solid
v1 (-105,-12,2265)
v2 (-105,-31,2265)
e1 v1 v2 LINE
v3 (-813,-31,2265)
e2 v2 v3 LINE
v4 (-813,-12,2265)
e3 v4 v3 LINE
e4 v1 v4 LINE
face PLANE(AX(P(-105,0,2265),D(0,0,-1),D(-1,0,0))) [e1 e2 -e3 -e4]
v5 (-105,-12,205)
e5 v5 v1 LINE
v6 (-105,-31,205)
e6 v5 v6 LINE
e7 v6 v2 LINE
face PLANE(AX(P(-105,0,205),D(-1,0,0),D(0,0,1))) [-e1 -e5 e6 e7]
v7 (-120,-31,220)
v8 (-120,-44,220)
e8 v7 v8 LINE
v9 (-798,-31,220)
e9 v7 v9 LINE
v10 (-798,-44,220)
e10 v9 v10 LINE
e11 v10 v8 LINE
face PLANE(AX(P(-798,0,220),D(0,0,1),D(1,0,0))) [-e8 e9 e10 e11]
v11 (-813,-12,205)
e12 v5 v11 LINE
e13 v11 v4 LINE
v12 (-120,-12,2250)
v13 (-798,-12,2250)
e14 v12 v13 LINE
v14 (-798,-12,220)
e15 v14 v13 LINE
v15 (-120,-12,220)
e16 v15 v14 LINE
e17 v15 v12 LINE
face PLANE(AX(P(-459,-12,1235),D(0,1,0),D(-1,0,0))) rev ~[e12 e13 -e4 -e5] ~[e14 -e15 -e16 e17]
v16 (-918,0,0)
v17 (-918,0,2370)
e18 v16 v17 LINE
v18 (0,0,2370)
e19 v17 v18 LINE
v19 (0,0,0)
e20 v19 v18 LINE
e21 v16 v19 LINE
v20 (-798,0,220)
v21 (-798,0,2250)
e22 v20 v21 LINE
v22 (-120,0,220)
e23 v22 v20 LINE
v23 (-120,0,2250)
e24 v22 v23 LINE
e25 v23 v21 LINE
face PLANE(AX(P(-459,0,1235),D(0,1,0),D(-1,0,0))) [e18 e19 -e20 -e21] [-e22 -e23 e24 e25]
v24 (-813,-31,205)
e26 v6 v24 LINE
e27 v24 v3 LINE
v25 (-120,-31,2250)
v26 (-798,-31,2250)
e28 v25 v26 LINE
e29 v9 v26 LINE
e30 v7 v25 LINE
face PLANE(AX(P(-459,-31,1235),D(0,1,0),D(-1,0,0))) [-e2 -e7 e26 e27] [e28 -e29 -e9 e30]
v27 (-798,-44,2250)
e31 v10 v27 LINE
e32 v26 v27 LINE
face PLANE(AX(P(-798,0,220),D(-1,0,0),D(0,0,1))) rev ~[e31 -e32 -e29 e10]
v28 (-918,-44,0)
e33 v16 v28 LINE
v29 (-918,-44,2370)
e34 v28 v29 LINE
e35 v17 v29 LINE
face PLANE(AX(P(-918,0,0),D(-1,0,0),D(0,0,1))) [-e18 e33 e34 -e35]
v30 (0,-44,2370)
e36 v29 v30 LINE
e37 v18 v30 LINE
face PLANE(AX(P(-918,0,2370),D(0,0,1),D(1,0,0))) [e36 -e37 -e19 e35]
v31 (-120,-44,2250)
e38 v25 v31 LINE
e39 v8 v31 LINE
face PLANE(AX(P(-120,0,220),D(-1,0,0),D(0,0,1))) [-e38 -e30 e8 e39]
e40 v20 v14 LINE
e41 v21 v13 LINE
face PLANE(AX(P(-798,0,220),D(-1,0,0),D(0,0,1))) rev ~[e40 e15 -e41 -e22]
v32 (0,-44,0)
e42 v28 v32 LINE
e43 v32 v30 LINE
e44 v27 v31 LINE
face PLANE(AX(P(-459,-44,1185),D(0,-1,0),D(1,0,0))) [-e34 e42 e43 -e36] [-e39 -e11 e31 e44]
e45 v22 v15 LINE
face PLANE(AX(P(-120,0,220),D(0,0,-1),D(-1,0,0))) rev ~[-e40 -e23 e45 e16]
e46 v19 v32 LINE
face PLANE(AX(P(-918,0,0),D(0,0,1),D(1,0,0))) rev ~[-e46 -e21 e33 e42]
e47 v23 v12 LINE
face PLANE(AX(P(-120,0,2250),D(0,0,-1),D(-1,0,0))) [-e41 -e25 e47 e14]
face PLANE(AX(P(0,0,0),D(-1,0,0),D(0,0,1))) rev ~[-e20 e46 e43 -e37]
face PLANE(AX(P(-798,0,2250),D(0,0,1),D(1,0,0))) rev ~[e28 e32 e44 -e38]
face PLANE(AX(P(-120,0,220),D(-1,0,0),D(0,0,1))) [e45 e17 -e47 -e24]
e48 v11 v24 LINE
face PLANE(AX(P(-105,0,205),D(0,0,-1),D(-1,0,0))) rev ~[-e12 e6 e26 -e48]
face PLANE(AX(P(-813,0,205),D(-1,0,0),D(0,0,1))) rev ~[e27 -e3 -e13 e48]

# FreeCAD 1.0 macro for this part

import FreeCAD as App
import Part
import Sketcher

V = App.Vector
Q = App.Units.Quantity


def add_polygon(sketch, points):
    """Adds a closed chain of lines whose ends are joined by coincident constraints."""
    first, n = sketch.GeometryCount, len(points)
    for a, b in zip(points, points[1:] + points[:1]):
        sketch.addGeometry(Part.LineSegment(App.Vector(*a, 0), App.Vector(*b, 0)), False)
    for i in range(n):
        sketch.addConstraint(Sketcher.Constraint("Coincident", first + i, 2, first + (i + 1) % n, 1))

doc = App.newDocument("Part")
params = doc.addObject("Spreadsheet::Sheet", "Params")
for row, (alias, value) in enumerate([
    ("sketch1_width", "918 mm"),
    ("sketch1_width2", "678 mm"),
    ("sketch1_height", "2370 mm"),
    ("sketch1_height2", "2030 mm"),
    ("pad1_length", "44 mm"),
    ("sketch2_width", "708 mm"),
    ("sketch2_width2", "678 mm"),
    ("sketch2_height", "2060 mm"),
    ("sketch2_height2", "2030 mm"),
    ("pocket1_length", "31 mm"),
    ("sketch3_width", "708 mm"),
    ("sketch3_width2", "678 mm"),
    ("sketch3_height", "2060 mm"),
    ("sketch3_height2", "2030 mm"),
    ("pad2_length", "12 mm"),
], start=1):
    params.set(f"A{row}", alias)
    params.set(f"B{row}", "=" + value)
    params.setAlias(f"B{row}", alias)

body = doc.addObject("PartDesign::Body", "Body")

# Sketch on XZ plane
sketch1 = doc.addObject("Sketcher::SketchObject", "Sketch")
body.addObject(sketch1)
sketch1.AttachmentSupport = (doc.XZ_Plane, [""])
sketch1.MapMode = "FlatFace"
add_polygon(sketch1, [(-918, 2370), (-918, 0), (0, 0), (0, 2370)])  # lines 0-3
add_polygon(sketch1, [(-120, 220), (-798, 220), (-798, 2250), (-120, 2250)])  # lines 4-7
sketch1.addConstraint([
    Sketcher.Constraint("Vertical", 0),
    Sketcher.Constraint("Horizontal", 1),
    Sketcher.Constraint("Vertical", 2),
    Sketcher.Constraint("Horizontal", 3),
    Sketcher.Constraint("Horizontal", 4),
    Sketcher.Constraint("Vertical", 5),
    Sketcher.Constraint("Horizontal", 6),
    Sketcher.Constraint("Vertical", 7),
    Sketcher.Constraint("Coincident", 1, 2, -1, 1),
    Sketcher.Constraint("DistanceX", 1, 1, 1, 2, Q("918 mm")),
    Sketcher.Constraint("DistanceX", 4, 2, 4, 1, Q("678 mm")),
    Sketcher.Constraint("DistanceY", 0, 2, 0, 1, Q("2370 mm")),
    Sketcher.Constraint("DistanceY", 5, 1, 5, 2, Q("2030 mm")),
    Sketcher.Constraint("DistanceX", 4, 2, -1, 1, Q("798 mm")),
    Sketcher.Constraint("DistanceY", -1, 1, 4, 2, Q("220 mm")),
])
sketch1.setExpression("Constraints[17]", "Params.sketch1_width")
sketch1.setExpression("Constraints[18]", "Params.sketch1_width2")
sketch1.setExpression("Constraints[19]", "Params.sketch1_height")
sketch1.setExpression("Constraints[20]", "Params.sketch1_height2")
pad1 = doc.addObject("PartDesign::Pad", "Pad")
body.addObject(pad1)
pad1.Profile = sketch1
pad1.setExpression("Length", "Params.pad1_length")

# Sketch on XZ plane
sketch2 = doc.addObject("Sketcher::SketchObject", "Sketch001")
body.addObject(sketch2)
sketch2.AttachmentSupport = (doc.XZ_Plane, [""])
sketch2.MapMode = "FlatFace"
add_polygon(sketch2, [(-105, 2265), (-105, 205), (-813, 205), (-813, 2265)])  # lines 0-3
add_polygon(sketch2, [(-798, 220), (-120, 220), (-120, 2250), (-798, 2250)])  # lines 4-7
sketch2.addConstraint([
    Sketcher.Constraint("Vertical", 0),
    Sketcher.Constraint("Horizontal", 1),
    Sketcher.Constraint("Vertical", 2),
    Sketcher.Constraint("Horizontal", 3),
    Sketcher.Constraint("Horizontal", 4),
    Sketcher.Constraint("Vertical", 5),
    Sketcher.Constraint("Horizontal", 6),
    Sketcher.Constraint("Vertical", 7),
    Sketcher.Constraint("DistanceX", 1, 2, 1, 1, Q("708 mm")),
    Sketcher.Constraint("DistanceX", 4, 1, 4, 2, Q("678 mm")),
    Sketcher.Constraint("DistanceY", 0, 2, 0, 1, Q("2060 mm")),
    Sketcher.Constraint("DistanceY", 5, 1, 5, 2, Q("2030 mm")),
    Sketcher.Constraint("DistanceX", 0, 2, -1, 1, Q("105 mm")),
    Sketcher.Constraint("DistanceY", -1, 1, 0, 2, Q("205 mm")),
    Sketcher.Constraint("DistanceX", 4, 2, -1, 1, Q("120 mm")),
    Sketcher.Constraint("DistanceY", -1, 1, 4, 2, Q("220 mm")),
])
sketch2.setExpression("Constraints[16]", "Params.sketch2_width")
sketch2.setExpression("Constraints[17]", "Params.sketch2_width2")
sketch2.setExpression("Constraints[18]", "Params.sketch2_height")
sketch2.setExpression("Constraints[19]", "Params.sketch2_height2")
pocket1 = doc.addObject("PartDesign::Pocket", "Pocket")
body.addObject(pocket1)
pocket1.Profile = sketch2
pocket1.setExpression("Length", "Params.pocket1_length")
pocket1.Reversed = True

# Sketch on XZ plane
sketch3 = doc.addObject("Sketcher::SketchObject", "Sketch002")
body.addObject(sketch3)
sketch3.AttachmentSupport = (doc.XZ_Plane, [""])
sketch3.MapMode = "FlatFace"
add_polygon(sketch3, [(-105, 2265), (-105, 205), (-813, 205), (-813, 2265)])  # lines 0-3
add_polygon(sketch3, [(-798, 220), (-120, 220), (-120, 2250), (-798, 2250)])  # lines 4-7
sketch3.addConstraint([
    Sketcher.Constraint("Vertical", 0),
    Sketcher.Constraint("Horizontal", 1),
    Sketcher.Constraint("Vertical", 2),
    Sketcher.Constraint("Horizontal", 3),
    Sketcher.Constraint("Horizontal", 4),
    Sketcher.Constraint("Vertical", 5),
    Sketcher.Constraint("Horizontal", 6),
    Sketcher.Constraint("Vertical", 7),
    Sketcher.Constraint("DistanceX", 1, 2, 1, 1, Q("708 mm")),
    Sketcher.Constraint("DistanceX", 4, 1, 4, 2, Q("678 mm")),
    Sketcher.Constraint("DistanceY", 0, 2, 0, 1, Q("2060 mm")),
    Sketcher.Constraint("DistanceY", 5, 1, 5, 2, Q("2030 mm")),
    Sketcher.Constraint("DistanceX", 0, 2, -1, 1, Q("105 mm")),
    Sketcher.Constraint("DistanceY", -1, 1, 0, 2, Q("205 mm")),
    Sketcher.Constraint("DistanceX", 4, 2, -1, 1, Q("120 mm")),
    Sketcher.Constraint("DistanceY", -1, 1, 4, 2, Q("220 mm")),
])
sketch3.setExpression("Constraints[16]", "Params.sketch3_width")
sketch3.setExpression("Constraints[17]", "Params.sketch3_width2")
sketch3.setExpression("Constraints[18]", "Params.sketch3_height")
sketch3.setExpression("Constraints[19]", "Params.sketch3_height2")
pad2 = doc.addObject("PartDesign::Pad", "Pad001")
body.addObject(pad2)
pad2.Profile = sketch3
pad2.setExpression("Length", "Params.pad2_length")

doc.recompute()
